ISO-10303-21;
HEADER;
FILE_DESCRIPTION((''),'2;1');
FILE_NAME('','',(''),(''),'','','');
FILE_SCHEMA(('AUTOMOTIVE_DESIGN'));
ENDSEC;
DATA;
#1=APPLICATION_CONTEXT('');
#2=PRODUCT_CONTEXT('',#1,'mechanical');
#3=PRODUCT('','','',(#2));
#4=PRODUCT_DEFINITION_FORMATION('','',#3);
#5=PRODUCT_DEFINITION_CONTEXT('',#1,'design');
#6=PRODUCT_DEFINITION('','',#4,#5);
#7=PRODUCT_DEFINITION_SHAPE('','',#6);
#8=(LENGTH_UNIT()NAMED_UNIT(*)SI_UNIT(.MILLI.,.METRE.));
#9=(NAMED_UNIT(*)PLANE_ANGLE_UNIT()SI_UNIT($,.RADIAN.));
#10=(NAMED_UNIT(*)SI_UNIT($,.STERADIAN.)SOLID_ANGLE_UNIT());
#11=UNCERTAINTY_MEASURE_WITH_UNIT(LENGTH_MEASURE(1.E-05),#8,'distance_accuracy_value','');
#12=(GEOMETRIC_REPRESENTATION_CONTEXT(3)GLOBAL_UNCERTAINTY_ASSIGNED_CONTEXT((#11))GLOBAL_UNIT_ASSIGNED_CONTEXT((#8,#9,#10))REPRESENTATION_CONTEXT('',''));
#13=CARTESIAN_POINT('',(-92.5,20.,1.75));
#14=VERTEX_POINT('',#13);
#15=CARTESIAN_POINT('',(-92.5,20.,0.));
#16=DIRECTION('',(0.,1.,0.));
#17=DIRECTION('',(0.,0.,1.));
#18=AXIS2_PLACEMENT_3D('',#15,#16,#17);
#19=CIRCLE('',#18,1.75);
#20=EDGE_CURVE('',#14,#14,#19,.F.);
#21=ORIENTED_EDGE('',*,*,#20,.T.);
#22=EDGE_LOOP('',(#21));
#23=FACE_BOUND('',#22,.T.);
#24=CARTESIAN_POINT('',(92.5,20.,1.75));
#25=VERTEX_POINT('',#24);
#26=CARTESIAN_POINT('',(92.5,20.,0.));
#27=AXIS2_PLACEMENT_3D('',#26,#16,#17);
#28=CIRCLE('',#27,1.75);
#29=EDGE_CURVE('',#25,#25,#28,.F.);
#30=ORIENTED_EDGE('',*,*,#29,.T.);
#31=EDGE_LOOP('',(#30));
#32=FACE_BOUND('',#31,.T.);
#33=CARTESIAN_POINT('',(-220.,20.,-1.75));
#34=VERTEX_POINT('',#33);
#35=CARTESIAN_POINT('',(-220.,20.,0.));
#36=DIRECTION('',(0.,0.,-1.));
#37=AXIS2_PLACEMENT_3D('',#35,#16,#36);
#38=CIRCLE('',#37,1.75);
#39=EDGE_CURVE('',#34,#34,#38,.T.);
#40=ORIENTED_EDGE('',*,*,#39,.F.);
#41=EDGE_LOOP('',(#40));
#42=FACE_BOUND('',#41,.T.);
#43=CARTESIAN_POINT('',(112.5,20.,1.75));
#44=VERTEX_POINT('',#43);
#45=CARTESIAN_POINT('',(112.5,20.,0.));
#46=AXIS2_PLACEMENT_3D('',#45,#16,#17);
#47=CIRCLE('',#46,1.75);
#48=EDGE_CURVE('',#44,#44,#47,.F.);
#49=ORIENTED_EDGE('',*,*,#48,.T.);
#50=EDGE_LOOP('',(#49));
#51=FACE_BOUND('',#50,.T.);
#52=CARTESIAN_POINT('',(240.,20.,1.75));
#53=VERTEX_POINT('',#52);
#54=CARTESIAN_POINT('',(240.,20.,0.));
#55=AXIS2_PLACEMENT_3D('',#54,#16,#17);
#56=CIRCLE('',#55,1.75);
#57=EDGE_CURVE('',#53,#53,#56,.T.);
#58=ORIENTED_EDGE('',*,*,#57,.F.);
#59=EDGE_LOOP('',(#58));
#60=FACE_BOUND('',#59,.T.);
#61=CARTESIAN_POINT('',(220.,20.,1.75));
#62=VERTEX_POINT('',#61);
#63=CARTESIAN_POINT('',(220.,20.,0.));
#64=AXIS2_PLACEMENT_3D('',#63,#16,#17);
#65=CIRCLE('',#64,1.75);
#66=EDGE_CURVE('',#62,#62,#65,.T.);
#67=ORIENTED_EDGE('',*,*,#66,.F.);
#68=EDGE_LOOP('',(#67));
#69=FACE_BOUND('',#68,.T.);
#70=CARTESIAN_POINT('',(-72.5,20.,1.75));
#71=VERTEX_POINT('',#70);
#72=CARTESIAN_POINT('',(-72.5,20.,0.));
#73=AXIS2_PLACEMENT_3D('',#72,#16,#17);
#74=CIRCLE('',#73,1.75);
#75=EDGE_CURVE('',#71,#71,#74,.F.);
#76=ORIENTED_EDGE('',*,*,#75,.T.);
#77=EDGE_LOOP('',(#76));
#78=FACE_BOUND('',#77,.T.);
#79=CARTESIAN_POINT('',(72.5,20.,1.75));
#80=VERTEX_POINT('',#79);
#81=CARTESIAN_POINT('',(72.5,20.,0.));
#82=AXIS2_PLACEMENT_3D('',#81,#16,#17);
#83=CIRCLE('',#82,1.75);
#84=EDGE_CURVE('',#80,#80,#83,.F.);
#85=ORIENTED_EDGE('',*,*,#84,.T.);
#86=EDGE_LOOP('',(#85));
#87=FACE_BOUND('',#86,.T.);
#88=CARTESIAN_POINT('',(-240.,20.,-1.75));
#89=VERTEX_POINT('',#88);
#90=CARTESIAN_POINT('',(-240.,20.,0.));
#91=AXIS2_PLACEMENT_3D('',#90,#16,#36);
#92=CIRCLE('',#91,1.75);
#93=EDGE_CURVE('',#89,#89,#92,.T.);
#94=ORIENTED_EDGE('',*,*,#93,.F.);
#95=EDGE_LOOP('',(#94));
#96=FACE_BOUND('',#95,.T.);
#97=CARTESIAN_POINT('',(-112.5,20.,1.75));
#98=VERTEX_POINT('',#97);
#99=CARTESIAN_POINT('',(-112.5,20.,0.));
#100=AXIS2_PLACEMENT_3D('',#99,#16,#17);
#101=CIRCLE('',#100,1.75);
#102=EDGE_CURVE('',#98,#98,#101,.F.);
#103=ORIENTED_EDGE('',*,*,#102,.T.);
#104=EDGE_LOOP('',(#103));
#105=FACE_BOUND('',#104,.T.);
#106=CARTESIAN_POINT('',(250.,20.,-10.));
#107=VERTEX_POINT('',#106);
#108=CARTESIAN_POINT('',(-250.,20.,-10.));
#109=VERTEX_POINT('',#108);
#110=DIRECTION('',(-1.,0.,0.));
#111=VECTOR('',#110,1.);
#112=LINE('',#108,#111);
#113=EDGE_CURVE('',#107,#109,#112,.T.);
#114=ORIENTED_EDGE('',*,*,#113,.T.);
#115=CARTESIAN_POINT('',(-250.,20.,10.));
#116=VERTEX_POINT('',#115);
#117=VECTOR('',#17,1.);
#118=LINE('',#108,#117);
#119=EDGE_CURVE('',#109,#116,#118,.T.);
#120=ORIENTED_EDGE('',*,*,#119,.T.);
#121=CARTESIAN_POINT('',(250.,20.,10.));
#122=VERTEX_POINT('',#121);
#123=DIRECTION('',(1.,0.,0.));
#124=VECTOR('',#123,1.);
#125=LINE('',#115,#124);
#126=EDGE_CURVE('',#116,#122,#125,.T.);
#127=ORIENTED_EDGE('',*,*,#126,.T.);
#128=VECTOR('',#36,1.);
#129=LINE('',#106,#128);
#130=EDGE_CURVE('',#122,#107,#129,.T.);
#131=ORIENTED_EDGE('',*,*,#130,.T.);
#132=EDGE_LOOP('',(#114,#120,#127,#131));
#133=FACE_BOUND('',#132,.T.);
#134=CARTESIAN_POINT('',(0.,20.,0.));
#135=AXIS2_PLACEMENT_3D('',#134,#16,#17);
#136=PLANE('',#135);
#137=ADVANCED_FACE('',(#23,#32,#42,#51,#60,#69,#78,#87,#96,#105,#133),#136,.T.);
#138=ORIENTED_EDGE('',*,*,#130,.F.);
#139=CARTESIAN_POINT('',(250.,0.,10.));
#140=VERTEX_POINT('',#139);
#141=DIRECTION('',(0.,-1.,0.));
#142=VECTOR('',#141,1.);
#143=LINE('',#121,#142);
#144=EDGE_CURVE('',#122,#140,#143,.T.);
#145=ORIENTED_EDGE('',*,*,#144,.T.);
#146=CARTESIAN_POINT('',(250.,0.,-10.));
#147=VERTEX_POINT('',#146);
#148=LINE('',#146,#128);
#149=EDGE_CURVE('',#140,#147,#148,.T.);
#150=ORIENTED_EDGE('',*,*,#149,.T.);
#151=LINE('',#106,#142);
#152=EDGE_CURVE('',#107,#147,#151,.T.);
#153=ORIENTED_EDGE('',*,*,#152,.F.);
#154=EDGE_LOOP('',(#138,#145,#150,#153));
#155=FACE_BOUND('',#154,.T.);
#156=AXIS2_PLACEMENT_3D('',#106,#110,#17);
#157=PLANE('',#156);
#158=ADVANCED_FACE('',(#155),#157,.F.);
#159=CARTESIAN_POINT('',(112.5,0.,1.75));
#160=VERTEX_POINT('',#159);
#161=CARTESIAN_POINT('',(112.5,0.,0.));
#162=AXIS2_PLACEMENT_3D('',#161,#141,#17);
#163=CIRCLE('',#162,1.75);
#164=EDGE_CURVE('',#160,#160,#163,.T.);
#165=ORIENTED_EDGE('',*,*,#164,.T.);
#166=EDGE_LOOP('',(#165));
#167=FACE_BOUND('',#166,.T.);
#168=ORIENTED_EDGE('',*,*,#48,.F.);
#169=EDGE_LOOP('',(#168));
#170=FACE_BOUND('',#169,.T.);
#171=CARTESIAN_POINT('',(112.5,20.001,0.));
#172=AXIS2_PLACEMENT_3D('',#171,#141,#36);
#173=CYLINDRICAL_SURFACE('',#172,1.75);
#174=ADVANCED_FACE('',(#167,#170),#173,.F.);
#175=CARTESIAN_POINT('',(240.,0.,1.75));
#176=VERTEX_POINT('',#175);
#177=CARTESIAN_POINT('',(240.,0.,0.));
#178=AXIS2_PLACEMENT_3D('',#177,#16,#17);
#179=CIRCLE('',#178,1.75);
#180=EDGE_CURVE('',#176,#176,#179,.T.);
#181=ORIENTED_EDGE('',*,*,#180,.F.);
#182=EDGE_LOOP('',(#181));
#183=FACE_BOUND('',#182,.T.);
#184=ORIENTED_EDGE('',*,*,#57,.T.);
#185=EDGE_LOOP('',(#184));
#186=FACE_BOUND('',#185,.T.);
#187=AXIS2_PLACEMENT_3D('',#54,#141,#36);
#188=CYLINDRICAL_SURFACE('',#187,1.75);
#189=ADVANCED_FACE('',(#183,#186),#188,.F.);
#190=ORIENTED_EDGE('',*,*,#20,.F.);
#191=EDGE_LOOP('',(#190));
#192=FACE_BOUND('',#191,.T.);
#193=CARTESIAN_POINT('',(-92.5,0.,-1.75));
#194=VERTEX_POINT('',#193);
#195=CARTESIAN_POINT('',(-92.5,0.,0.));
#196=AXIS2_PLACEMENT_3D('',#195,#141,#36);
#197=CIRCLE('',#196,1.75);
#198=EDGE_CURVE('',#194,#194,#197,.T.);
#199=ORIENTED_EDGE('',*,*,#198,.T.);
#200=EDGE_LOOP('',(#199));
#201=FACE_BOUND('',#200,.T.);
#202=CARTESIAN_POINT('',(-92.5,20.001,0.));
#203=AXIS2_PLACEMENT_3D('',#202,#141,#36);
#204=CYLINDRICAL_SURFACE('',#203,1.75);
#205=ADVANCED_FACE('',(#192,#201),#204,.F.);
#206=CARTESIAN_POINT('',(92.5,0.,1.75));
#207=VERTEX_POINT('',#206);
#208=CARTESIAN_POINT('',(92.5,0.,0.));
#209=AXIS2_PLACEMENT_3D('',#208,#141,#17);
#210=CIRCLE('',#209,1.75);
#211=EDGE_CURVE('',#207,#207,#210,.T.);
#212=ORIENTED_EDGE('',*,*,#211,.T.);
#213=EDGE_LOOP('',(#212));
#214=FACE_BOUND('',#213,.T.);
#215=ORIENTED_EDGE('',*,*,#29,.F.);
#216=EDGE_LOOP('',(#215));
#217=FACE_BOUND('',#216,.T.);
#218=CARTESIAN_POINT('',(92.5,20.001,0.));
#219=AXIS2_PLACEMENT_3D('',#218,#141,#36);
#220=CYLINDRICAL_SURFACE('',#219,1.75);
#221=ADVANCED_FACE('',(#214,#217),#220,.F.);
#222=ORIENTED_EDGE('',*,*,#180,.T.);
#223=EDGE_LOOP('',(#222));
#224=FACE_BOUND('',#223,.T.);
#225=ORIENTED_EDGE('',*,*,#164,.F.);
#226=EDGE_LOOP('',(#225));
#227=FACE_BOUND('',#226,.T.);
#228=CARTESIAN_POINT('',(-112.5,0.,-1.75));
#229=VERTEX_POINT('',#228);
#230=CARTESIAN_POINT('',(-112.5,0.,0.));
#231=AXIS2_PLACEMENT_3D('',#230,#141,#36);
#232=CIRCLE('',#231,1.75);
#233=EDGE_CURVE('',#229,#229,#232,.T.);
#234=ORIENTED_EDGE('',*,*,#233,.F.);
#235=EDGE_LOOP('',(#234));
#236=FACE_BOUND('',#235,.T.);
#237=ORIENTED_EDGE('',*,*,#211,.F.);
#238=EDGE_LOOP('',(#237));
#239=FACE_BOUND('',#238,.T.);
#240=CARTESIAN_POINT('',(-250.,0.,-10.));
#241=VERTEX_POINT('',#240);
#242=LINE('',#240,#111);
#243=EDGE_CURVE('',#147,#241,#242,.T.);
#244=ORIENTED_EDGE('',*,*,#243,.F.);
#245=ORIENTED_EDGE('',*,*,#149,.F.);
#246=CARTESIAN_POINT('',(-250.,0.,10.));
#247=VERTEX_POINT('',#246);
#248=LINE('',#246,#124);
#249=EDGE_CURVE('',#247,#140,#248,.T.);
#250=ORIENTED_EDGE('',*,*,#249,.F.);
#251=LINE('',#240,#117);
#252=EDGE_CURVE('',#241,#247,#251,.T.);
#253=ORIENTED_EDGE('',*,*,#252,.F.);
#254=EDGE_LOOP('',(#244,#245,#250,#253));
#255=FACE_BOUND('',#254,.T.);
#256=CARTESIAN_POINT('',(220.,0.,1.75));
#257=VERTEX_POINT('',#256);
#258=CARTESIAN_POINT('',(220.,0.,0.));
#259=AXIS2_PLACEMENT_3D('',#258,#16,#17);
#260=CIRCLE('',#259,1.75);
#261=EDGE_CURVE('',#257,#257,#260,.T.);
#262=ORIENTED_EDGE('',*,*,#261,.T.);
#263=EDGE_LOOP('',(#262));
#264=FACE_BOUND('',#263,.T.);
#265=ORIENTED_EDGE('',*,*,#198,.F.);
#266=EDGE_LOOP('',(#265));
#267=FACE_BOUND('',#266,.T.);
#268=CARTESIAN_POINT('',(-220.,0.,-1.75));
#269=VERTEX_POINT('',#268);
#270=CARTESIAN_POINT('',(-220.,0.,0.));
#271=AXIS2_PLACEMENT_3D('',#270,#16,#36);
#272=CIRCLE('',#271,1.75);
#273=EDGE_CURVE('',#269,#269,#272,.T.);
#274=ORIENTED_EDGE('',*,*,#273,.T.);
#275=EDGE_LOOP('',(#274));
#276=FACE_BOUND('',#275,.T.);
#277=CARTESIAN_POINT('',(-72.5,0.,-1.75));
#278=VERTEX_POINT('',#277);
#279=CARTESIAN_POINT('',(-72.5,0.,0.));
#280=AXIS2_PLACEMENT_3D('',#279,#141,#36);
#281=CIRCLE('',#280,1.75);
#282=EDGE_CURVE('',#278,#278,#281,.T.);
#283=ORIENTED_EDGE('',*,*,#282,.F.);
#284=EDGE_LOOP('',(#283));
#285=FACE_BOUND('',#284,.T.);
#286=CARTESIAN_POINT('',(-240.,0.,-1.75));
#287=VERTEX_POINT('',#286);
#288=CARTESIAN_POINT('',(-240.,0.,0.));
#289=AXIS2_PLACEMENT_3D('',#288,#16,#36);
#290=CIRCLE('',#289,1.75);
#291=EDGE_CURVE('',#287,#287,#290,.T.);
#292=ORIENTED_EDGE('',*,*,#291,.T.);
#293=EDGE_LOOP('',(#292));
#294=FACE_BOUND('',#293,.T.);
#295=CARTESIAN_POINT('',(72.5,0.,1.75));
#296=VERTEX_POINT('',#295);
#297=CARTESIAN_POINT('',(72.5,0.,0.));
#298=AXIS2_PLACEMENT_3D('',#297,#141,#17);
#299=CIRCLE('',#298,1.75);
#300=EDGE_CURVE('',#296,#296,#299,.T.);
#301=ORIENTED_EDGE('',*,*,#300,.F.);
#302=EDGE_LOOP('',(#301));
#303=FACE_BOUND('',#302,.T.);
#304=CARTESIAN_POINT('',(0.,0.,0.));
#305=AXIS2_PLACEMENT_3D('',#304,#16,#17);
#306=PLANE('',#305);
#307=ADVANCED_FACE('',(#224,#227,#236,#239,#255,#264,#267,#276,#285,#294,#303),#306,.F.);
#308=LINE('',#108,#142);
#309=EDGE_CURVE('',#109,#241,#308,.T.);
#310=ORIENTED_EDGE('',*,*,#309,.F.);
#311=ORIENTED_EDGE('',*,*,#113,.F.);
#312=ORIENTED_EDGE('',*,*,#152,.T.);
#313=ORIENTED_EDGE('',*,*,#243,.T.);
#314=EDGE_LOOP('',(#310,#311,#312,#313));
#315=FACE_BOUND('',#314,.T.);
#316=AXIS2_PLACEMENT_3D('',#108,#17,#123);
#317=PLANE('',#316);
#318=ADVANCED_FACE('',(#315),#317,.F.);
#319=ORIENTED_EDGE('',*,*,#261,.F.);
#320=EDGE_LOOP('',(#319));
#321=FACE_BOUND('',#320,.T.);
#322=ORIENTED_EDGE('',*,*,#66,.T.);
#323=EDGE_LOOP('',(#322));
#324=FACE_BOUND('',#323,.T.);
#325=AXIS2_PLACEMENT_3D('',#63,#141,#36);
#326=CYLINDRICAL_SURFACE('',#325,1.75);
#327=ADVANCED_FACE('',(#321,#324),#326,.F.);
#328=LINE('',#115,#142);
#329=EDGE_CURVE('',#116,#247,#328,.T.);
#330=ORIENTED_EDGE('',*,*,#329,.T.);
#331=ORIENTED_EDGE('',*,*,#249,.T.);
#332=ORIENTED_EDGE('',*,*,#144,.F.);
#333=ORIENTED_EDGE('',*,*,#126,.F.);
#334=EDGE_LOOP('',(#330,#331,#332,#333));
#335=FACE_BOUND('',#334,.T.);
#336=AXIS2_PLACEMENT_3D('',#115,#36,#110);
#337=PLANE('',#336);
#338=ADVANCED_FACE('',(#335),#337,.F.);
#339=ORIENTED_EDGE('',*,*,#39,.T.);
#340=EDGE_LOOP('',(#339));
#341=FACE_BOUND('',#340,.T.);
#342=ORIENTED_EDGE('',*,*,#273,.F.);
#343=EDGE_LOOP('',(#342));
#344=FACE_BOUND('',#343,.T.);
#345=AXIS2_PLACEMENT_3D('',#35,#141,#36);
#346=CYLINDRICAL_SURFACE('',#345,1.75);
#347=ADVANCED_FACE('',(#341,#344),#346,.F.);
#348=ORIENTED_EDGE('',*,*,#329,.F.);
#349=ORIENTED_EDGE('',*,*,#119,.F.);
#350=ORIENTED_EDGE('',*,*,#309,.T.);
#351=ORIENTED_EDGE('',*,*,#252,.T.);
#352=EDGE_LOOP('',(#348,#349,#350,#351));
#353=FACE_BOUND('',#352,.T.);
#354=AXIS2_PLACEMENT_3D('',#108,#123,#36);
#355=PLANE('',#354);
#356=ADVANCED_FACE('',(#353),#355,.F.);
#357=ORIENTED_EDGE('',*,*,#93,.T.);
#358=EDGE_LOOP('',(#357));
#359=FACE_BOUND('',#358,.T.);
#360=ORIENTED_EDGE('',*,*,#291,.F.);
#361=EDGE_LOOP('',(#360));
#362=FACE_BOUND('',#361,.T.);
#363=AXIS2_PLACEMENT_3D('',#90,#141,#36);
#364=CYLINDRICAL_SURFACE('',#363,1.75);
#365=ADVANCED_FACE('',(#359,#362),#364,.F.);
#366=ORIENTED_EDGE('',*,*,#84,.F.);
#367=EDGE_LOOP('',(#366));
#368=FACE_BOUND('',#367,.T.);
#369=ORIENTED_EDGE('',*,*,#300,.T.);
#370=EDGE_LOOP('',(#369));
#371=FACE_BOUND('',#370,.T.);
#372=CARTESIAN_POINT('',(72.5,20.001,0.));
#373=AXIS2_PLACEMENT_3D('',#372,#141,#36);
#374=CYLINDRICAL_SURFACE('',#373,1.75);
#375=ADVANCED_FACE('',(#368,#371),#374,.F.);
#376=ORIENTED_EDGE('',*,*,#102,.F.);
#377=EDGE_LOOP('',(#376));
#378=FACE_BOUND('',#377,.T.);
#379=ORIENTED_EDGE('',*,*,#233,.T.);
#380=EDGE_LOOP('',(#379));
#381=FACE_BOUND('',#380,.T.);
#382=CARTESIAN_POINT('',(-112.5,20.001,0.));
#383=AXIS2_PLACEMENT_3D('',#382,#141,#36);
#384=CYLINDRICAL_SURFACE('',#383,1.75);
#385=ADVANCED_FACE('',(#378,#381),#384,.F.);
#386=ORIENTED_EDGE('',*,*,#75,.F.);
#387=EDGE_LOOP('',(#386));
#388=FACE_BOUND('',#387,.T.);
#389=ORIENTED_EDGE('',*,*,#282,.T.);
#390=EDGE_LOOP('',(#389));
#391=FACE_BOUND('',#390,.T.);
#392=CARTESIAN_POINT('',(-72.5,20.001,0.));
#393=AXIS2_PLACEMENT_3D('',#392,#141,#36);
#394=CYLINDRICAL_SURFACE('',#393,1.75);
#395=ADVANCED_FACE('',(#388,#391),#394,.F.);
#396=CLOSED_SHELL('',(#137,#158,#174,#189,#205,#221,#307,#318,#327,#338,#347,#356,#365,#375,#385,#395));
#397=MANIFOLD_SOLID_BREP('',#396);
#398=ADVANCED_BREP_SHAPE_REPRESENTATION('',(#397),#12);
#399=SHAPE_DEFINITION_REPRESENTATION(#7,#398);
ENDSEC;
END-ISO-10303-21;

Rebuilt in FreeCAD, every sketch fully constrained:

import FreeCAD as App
import Part
import Sketcher
Q = App.Units.Quantity


def add_polygon(sketch, points):
    """Adds a closed chain of lines whose ends are joined by coincident constraints."""
    first, n = sketch.GeometryCount, len(points)
    for a, b in zip(points, points[1:] + points[:1]):
        sketch.addGeometry(Part.LineSegment(App.Vector(*a, 0), App.Vector(*b, 0)), False)
    for i in range(n):
        sketch.addConstraint(Sketcher.Constraint("Coincident", first + i, 2, first + (i + 1) % n, 1))

doc = App.newDocument("Part")
body = doc.addObject("PartDesign::Body", "Body")

# Sketch on XZ plane
sketch1 = doc.addObject("Sketcher::SketchObject", "Sketch")
body.addObject(sketch1)
sketch1.AttachmentSupport = (doc.XZ_Plane, [""])
sketch1.MapMode = "FlatFace"
add_polygon(sketch1, [(-250, -10), (-250, 10), (250, 10), (250, -10)])  # lines 0-3
sketch1.addGeometry(Part.Circle(App.Vector(-240, 0, 0), App.Vector(0, 0, 1), 1.8), False)  # 4
sketch1.addGeometry(Part.Circle(App.Vector(-220, 0, 0), App.Vector(0, 0, 1), 1.8), False)  # 5
sketch1.addGeometry(Part.Circle(App.Vector(220, 0, 0), App.Vector(0, 0, 1), 1.8), False)  # 6
sketch1.addGeometry(Part.Circle(App.Vector(240, 0, 0), App.Vector(0, 0, 1), 1.8), False)  # 7
sketch1.addConstraint(Sketcher.Constraint("Vertical", 0))
sketch1.addConstraint(Sketcher.Constraint("Horizontal", 1))
sketch1.addConstraint(Sketcher.Constraint("Vertical", 2))
sketch1.addConstraint(Sketcher.Constraint("Horizontal", 3))
sketch1.addConstraint(Sketcher.Constraint("Equal", 4, 5))
sketch1.addConstraint(Sketcher.Constraint("Equal", 5, 6))
sketch1.addConstraint(Sketcher.Constraint("Equal", 6, 7))
sketch1.addConstraint(Sketcher.Constraint("Symmetric", 5, 3, 6, 3, -1, 1))
sketch1.addConstraint(Sketcher.Constraint("Symmetric", 4, 3, 7, 3, -1, 1))
sketch1.addConstraint(Sketcher.Constraint("Symmetric", 0, 2, 2, 2, -1, 1))
sketch1.addConstraint(Sketcher.Constraint("PointOnObject", 4, 3, -1))
sketch1.addConstraint(Sketcher.Constraint("PointOnObject", 5, 3, -1))
sketch1.addConstraint(Sketcher.Constraint("Diameter", 4, Q("3.5 mm")))
sketch1.addConstraint(Sketcher.Constraint("DistanceX", 1, 1, 1, 2, Q("500 mm")))
sketch1.addConstraint(Sketcher.Constraint("DistanceY", 0, 1, 0, 2, Q("20 mm")))
sketch1.addConstraint(Sketcher.Constraint("DistanceX", 4, 3, -1, 1, Q("240 mm")))
sketch1.addConstraint(Sketcher.Constraint("DistanceX", 5, 3, -1, 1, Q("220 mm")))
pad1 = doc.addObject("PartDesign::Pad", "Pad")
body.addObject(pad1)
pad1.Profile = sketch1
pad1.Length = 20
pad1.Reversed = True

# Sketch on XZ plane
sketch2 = doc.addObject("Sketcher::SketchObject", "Sketch001")
body.addObject(sketch2)
sketch2.AttachmentSupport = (doc.XZ_Plane, [""])
sketch2.MapMode = "FlatFace"
sketch2.addGeometry(Part.Circle(App.Vector(-92.5, 0, 0), App.Vector(0, 0, 1), 1.8), False)
sketch2.addConstraint(Sketcher.Constraint("PointOnObject", 0, 3, -1))
sketch2.addConstraint(Sketcher.Constraint("Diameter", 0, Q("3.5 mm")))
sketch2.addConstraint(Sketcher.Constraint("DistanceX", 0, 3, -1, 1, Q("92.5 mm")))
pocket1 = doc.addObject("PartDesign::Pocket", "Pocket")
body.addObject(pocket1)
pocket1.Profile = sketch2
pocket1.Type = "UpToFirst"

# Sketch on XZ plane
sketch3 = doc.addObject("Sketcher::SketchObject", "Sketch002")
body.addObject(sketch3)
sketch3.AttachmentSupport = (doc.XZ_Plane, [""])
sketch3.MapMode = "FlatFace"
sketch3.addGeometry(Part.Circle(App.Vector(-72.5, 0, 0), App.Vector(0, 0, 1), 1.8), False)
sketch3.addConstraint(Sketcher.Constraint("PointOnObject", 0, 3, -1))
sketch3.addConstraint(Sketcher.Constraint("Diameter", 0, Q("3.5 mm")))
sketch3.addConstraint(Sketcher.Constraint("DistanceX", 0, 3, -1, 1, Q("72.5 mm")))
pocket2 = doc.addObject("PartDesign::Pocket", "Pocket001")
body.addObject(pocket2)
pocket2.Profile = sketch3
pocket2.Type = "UpToFirst"

# Sketch on XZ plane
sketch4 = doc.addObject("Sketcher::SketchObject", "Sketch003")
body.addObject(sketch4)
sketch4.AttachmentSupport = (doc.XZ_Plane, [""])
sketch4.MapMode = "FlatFace"
sketch4.addGeometry(Part.Circle(App.Vector(-112.5, 0, 0), App.Vector(0, 0, 1), 1.8), False)
sketch4.addConstraint(Sketcher.Constraint("PointOnObject", 0, 3, -1))
sketch4.addConstraint(Sketcher.Constraint("Diameter", 0, Q("3.5 mm")))
sketch4.addConstraint(Sketcher.Constraint("DistanceX", 0, 3, -1, 1, Q("112.5 mm")))
pocket3 = doc.addObject("PartDesign::Pocket", "Pocket002")
body.addObject(pocket3)
pocket3.Profile = sketch4
pocket3.Type = "UpToFirst"

# Sketch on XZ plane
sketch5 = doc.addObject("Sketcher::SketchObject", "Sketch004")
body.addObject(sketch5)
sketch5.AttachmentSupport = (doc.XZ_Plane, [""])
sketch5.MapMode = "FlatFace"
sketch5.addGeometry(Part.Circle(App.Vector(112.5, 0, 0), App.Vector(0, 0, 1), 1.8), False)
sketch5.addConstraint(Sketcher.Constraint("PointOnObject", 0, 3, -1))
sketch5.addConstraint(Sketcher.Constraint("Diameter", 0, Q("3.5 mm")))
sketch5.addConstraint(Sketcher.Constraint("DistanceX", -1, 1, 0, 3, Q("112.5 mm")))
pocket4 = doc.addObject("PartDesign::Pocket", "Pocket003")
body.addObject(pocket4)
pocket4.Profile = sketch5
pocket4.Type = "UpToFirst"

# Sketch on XZ plane
sketch6 = doc.addObject("Sketcher::SketchObject", "Sketch005")
body.addObject(sketch6)
sketch6.AttachmentSupport = (doc.XZ_Plane, [""])
sketch6.MapMode = "FlatFace"
sketch6.addGeometry(Part.Circle(App.Vector(92.5, 0, 0), App.Vector(0, 0, 1), 1.8), False)
sketch6.addConstraint(Sketcher.Constraint("PointOnObject", 0, 3, -1))
sketch6.addConstraint(Sketcher.Constraint("Diameter", 0, Q("3.5 mm")))
sketch6.addConstraint(Sketcher.Constraint("DistanceX", -1, 1, 0, 3, Q("92.5 mm")))
pocket5 = doc.addObject("PartDesign::Pocket", "Pocket004")
body.addObject(pocket5)
pocket5.Profile = sketch6
pocket5.Type = "UpToFirst"

# Sketch on XZ plane
sketch7 = doc.addObject("Sketcher::SketchObject", "Sketch006")
body.addObject(sketch7)
sketch7.AttachmentSupport = (doc.XZ_Plane, [""])
sketch7.MapMode = "FlatFace"
sketch7.addGeometry(Part.Circle(App.Vector(72.5, 0, 0), App.Vector(0, 0, 1), 1.8), False)
sketch7.addConstraint(Sketcher.Constraint("PointOnObject", 0, 3, -1))
sketch7.addConstraint(Sketcher.Constraint("Diameter", 0, Q("3.5 mm")))
sketch7.addConstraint(Sketcher.Constraint("DistanceX", -1, 1, 0, 3, Q("72.5 mm")))
pocket6 = doc.addObject("PartDesign::Pocket", "Pocket005")
body.addObject(pocket6)
pocket6.Profile = sketch7
pocket6.Type = "UpToFirst"

doc.recompute()
